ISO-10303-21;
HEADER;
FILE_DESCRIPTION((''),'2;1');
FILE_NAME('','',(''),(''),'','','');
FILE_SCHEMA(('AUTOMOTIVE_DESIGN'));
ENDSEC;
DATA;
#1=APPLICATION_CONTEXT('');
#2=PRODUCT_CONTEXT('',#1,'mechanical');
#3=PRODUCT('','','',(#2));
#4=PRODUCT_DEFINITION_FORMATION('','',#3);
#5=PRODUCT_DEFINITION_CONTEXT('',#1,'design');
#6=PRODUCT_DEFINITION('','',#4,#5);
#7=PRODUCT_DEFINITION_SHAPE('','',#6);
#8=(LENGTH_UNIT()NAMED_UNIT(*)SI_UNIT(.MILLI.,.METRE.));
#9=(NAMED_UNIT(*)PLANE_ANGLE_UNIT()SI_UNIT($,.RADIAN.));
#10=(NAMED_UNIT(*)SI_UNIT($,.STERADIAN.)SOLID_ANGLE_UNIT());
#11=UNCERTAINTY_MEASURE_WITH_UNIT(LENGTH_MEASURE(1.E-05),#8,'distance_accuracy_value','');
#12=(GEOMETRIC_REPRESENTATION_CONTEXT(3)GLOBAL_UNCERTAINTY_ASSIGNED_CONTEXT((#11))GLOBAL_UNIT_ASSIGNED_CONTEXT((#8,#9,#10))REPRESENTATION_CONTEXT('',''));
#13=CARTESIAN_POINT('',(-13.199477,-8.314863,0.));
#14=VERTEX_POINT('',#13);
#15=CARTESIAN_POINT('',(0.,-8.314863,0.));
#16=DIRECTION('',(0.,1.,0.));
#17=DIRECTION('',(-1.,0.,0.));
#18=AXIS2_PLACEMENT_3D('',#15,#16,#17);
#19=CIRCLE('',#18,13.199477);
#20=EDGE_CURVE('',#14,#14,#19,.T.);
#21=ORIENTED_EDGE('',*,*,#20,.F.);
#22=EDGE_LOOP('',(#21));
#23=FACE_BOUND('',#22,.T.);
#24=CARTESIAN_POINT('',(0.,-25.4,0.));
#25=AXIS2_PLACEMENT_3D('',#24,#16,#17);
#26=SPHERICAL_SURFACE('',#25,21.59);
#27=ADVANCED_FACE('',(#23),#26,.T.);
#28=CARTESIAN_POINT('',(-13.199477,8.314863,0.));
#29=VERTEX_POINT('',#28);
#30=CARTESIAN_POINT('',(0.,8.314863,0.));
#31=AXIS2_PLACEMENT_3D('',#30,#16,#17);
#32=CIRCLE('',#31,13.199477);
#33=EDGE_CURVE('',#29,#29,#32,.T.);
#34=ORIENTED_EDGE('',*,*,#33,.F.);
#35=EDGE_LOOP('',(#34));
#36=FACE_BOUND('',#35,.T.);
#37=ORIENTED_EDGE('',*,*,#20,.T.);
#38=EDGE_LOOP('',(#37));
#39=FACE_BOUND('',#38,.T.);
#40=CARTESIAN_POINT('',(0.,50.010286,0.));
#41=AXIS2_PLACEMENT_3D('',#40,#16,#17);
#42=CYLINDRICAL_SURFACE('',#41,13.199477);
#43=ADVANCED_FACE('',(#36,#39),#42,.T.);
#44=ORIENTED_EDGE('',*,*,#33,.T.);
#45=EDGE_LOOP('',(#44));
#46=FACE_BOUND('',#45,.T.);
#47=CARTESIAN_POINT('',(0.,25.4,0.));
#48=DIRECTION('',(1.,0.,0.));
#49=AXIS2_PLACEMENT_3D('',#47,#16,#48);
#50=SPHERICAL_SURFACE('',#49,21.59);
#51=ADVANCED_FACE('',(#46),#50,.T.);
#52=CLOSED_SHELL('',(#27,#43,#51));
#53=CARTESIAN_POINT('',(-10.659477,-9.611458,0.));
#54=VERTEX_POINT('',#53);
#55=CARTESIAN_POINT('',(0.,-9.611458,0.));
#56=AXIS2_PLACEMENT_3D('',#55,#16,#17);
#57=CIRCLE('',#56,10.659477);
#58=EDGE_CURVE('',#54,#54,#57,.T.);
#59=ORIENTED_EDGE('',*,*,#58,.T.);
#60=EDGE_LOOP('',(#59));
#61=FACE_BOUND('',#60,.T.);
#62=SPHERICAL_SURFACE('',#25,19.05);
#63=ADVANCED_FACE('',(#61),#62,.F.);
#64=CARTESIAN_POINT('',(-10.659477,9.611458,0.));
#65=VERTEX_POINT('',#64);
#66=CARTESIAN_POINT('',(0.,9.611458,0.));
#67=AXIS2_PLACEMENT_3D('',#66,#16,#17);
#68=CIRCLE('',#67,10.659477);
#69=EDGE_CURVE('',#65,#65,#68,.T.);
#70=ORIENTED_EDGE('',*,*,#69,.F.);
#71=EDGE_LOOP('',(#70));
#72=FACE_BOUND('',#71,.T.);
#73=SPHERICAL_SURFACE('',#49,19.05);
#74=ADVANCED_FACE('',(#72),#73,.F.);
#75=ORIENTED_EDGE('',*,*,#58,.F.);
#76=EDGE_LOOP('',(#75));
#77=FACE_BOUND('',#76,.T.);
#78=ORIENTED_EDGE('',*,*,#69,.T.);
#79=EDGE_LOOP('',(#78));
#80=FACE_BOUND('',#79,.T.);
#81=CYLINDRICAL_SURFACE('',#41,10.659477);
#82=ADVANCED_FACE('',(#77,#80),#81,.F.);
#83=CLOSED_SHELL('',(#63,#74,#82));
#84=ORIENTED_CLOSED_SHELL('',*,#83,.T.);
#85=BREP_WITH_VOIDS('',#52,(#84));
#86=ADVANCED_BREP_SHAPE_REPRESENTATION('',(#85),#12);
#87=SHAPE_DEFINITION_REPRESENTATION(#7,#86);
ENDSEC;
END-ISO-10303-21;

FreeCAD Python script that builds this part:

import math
import FreeCAD as App
import Part
import Sketcher

V = App.Vector
Q = App.Units.Quantity

doc = App.newDocument("Part")
body = doc.addObject("PartDesign::Body", "Body")

sketch1 = body.newObject("Sketcher::SketchObject", "Sketch")
sketch1.AttachmentSupport = (doc.getObject("XY_Plane"), [""])
sketch1.MapMode = "FlatFace"
sketch1.addGeometry(Part.ArcOfCircle(Part.Circle(V(0, 25.4, 0), V(0, 0, 1), 19.05), math.radians(-55.975139), math.radians(90)), False)
sketch1.addGeometry(Part.LineSegment(V(10.659477, 9.611458, 0), V(10.659477, -9.611458, 0)), False)
sketch1.addGeometry(Part.ArcOfCircle(Part.Circle(V(0, -25.4, 0), V(0, 0, 1), 19.05), math.radians(-90), math.radians(55.975139)), False)
sketch1.addGeometry(Part.LineSegment(V(0, -44.45, 0), V(0, -46.99, 0)), False)
sketch1.addGeometry(Part.ArcOfCircle(Part.Circle(V(0, -25.4, 0), V(0, 0, 1), 21.59), math.radians(-90), math.radians(52.311377)), False)
sketch1.addGeometry(Part.LineSegment(V(13.199477, -8.314863, 0), V(13.199477, 8.314863, 0)), False)
sketch1.addGeometry(Part.ArcOfCircle(Part.Circle(V(0, 25.4, 0), V(0, 0, 1), 21.59), math.radians(-52.311377), math.radians(90)), False)
sketch1.addGeometry(Part.LineSegment(V(0, 46.99, 0), V(0, 44.45, 0)), False)
sketch1.addConstraint(Sketcher.Constraint("Coincident", 0, 1, 1, 1))
sketch1.addConstraint(Sketcher.Constraint("Coincident", 1, 2, 2, 2))
sketch1.addConstraint(Sketcher.Constraint("Coincident", 2, 1, 3, 1))
sketch1.addConstraint(Sketcher.Constraint("Coincident", 3, 2, 4, 1))
sketch1.addConstraint(Sketcher.Constraint("Coincident", 4, 2, 5, 1))
sketch1.addConstraint(Sketcher.Constraint("Coincident", 5, 2, 6, 1))
sketch1.addConstraint(Sketcher.Constraint("Coincident", 6, 2, 7, 1))
sketch1.addConstraint(Sketcher.Constraint("Coincident", 7, 2, 0, 2))
sketch1.addConstraint(Sketcher.Constraint("Vertical", 1))
sketch1.addConstraint(Sketcher.Constraint("Vertical", 3))
sketch1.addConstraint(Sketcher.Constraint("Vertical", 5))
sketch1.addConstraint(Sketcher.Constraint("Vertical", 7))
sketch1.addConstraint(Sketcher.Constraint("Coincident", 4, 3, 2, 3))
sketch1.addConstraint(Sketcher.Constraint("Coincident", 6, 3, 0, 3))
sketch1.addConstraint(Sketcher.Constraint("Equal", 0, 2))
sketch1.addConstraint(Sketcher.Constraint("Equal", 4, 6))
sketch1.addConstraint(Sketcher.Constraint("Symmetric", 0, 3, 2, 3, -1, 1))
sketch1.addConstraint(Sketcher.Constraint("PointOnObject", 0, 3, -2))
sketch1.addConstraint(Sketcher.Constraint("PointOnObject", 2, 1, -2))
sketch1.addConstraint(Sketcher.Constraint("PointOnObject", 6, 2, -2))
sketch1.addConstraint(Sketcher.Constraint("Radius", 0, Q("0.75 in")))
sketch1.addConstraint(Sketcher.Constraint("Radius", 4, Q("0.85 in")))
sketch1.addConstraint(Sketcher.Constraint("DistanceY", -1, 1, 0, 3, Q("1 in")))
sketch1.addConstraint(Sketcher.Constraint("DistanceX", 1, 2, 4, 2, Q("0.1 in")))
sketch1.addConstraint(Sketcher.Constraint("DistanceY", 1, 2, 1, 1, 19.222916))
revolution = body.newObject("PartDesign::Revolution", "Revolution")
revolution.Profile = sketch1
revolution.ReferenceAxis = (sketch1, ["V_Axis"])
revolution.Angle = 360

doc.recompute()
